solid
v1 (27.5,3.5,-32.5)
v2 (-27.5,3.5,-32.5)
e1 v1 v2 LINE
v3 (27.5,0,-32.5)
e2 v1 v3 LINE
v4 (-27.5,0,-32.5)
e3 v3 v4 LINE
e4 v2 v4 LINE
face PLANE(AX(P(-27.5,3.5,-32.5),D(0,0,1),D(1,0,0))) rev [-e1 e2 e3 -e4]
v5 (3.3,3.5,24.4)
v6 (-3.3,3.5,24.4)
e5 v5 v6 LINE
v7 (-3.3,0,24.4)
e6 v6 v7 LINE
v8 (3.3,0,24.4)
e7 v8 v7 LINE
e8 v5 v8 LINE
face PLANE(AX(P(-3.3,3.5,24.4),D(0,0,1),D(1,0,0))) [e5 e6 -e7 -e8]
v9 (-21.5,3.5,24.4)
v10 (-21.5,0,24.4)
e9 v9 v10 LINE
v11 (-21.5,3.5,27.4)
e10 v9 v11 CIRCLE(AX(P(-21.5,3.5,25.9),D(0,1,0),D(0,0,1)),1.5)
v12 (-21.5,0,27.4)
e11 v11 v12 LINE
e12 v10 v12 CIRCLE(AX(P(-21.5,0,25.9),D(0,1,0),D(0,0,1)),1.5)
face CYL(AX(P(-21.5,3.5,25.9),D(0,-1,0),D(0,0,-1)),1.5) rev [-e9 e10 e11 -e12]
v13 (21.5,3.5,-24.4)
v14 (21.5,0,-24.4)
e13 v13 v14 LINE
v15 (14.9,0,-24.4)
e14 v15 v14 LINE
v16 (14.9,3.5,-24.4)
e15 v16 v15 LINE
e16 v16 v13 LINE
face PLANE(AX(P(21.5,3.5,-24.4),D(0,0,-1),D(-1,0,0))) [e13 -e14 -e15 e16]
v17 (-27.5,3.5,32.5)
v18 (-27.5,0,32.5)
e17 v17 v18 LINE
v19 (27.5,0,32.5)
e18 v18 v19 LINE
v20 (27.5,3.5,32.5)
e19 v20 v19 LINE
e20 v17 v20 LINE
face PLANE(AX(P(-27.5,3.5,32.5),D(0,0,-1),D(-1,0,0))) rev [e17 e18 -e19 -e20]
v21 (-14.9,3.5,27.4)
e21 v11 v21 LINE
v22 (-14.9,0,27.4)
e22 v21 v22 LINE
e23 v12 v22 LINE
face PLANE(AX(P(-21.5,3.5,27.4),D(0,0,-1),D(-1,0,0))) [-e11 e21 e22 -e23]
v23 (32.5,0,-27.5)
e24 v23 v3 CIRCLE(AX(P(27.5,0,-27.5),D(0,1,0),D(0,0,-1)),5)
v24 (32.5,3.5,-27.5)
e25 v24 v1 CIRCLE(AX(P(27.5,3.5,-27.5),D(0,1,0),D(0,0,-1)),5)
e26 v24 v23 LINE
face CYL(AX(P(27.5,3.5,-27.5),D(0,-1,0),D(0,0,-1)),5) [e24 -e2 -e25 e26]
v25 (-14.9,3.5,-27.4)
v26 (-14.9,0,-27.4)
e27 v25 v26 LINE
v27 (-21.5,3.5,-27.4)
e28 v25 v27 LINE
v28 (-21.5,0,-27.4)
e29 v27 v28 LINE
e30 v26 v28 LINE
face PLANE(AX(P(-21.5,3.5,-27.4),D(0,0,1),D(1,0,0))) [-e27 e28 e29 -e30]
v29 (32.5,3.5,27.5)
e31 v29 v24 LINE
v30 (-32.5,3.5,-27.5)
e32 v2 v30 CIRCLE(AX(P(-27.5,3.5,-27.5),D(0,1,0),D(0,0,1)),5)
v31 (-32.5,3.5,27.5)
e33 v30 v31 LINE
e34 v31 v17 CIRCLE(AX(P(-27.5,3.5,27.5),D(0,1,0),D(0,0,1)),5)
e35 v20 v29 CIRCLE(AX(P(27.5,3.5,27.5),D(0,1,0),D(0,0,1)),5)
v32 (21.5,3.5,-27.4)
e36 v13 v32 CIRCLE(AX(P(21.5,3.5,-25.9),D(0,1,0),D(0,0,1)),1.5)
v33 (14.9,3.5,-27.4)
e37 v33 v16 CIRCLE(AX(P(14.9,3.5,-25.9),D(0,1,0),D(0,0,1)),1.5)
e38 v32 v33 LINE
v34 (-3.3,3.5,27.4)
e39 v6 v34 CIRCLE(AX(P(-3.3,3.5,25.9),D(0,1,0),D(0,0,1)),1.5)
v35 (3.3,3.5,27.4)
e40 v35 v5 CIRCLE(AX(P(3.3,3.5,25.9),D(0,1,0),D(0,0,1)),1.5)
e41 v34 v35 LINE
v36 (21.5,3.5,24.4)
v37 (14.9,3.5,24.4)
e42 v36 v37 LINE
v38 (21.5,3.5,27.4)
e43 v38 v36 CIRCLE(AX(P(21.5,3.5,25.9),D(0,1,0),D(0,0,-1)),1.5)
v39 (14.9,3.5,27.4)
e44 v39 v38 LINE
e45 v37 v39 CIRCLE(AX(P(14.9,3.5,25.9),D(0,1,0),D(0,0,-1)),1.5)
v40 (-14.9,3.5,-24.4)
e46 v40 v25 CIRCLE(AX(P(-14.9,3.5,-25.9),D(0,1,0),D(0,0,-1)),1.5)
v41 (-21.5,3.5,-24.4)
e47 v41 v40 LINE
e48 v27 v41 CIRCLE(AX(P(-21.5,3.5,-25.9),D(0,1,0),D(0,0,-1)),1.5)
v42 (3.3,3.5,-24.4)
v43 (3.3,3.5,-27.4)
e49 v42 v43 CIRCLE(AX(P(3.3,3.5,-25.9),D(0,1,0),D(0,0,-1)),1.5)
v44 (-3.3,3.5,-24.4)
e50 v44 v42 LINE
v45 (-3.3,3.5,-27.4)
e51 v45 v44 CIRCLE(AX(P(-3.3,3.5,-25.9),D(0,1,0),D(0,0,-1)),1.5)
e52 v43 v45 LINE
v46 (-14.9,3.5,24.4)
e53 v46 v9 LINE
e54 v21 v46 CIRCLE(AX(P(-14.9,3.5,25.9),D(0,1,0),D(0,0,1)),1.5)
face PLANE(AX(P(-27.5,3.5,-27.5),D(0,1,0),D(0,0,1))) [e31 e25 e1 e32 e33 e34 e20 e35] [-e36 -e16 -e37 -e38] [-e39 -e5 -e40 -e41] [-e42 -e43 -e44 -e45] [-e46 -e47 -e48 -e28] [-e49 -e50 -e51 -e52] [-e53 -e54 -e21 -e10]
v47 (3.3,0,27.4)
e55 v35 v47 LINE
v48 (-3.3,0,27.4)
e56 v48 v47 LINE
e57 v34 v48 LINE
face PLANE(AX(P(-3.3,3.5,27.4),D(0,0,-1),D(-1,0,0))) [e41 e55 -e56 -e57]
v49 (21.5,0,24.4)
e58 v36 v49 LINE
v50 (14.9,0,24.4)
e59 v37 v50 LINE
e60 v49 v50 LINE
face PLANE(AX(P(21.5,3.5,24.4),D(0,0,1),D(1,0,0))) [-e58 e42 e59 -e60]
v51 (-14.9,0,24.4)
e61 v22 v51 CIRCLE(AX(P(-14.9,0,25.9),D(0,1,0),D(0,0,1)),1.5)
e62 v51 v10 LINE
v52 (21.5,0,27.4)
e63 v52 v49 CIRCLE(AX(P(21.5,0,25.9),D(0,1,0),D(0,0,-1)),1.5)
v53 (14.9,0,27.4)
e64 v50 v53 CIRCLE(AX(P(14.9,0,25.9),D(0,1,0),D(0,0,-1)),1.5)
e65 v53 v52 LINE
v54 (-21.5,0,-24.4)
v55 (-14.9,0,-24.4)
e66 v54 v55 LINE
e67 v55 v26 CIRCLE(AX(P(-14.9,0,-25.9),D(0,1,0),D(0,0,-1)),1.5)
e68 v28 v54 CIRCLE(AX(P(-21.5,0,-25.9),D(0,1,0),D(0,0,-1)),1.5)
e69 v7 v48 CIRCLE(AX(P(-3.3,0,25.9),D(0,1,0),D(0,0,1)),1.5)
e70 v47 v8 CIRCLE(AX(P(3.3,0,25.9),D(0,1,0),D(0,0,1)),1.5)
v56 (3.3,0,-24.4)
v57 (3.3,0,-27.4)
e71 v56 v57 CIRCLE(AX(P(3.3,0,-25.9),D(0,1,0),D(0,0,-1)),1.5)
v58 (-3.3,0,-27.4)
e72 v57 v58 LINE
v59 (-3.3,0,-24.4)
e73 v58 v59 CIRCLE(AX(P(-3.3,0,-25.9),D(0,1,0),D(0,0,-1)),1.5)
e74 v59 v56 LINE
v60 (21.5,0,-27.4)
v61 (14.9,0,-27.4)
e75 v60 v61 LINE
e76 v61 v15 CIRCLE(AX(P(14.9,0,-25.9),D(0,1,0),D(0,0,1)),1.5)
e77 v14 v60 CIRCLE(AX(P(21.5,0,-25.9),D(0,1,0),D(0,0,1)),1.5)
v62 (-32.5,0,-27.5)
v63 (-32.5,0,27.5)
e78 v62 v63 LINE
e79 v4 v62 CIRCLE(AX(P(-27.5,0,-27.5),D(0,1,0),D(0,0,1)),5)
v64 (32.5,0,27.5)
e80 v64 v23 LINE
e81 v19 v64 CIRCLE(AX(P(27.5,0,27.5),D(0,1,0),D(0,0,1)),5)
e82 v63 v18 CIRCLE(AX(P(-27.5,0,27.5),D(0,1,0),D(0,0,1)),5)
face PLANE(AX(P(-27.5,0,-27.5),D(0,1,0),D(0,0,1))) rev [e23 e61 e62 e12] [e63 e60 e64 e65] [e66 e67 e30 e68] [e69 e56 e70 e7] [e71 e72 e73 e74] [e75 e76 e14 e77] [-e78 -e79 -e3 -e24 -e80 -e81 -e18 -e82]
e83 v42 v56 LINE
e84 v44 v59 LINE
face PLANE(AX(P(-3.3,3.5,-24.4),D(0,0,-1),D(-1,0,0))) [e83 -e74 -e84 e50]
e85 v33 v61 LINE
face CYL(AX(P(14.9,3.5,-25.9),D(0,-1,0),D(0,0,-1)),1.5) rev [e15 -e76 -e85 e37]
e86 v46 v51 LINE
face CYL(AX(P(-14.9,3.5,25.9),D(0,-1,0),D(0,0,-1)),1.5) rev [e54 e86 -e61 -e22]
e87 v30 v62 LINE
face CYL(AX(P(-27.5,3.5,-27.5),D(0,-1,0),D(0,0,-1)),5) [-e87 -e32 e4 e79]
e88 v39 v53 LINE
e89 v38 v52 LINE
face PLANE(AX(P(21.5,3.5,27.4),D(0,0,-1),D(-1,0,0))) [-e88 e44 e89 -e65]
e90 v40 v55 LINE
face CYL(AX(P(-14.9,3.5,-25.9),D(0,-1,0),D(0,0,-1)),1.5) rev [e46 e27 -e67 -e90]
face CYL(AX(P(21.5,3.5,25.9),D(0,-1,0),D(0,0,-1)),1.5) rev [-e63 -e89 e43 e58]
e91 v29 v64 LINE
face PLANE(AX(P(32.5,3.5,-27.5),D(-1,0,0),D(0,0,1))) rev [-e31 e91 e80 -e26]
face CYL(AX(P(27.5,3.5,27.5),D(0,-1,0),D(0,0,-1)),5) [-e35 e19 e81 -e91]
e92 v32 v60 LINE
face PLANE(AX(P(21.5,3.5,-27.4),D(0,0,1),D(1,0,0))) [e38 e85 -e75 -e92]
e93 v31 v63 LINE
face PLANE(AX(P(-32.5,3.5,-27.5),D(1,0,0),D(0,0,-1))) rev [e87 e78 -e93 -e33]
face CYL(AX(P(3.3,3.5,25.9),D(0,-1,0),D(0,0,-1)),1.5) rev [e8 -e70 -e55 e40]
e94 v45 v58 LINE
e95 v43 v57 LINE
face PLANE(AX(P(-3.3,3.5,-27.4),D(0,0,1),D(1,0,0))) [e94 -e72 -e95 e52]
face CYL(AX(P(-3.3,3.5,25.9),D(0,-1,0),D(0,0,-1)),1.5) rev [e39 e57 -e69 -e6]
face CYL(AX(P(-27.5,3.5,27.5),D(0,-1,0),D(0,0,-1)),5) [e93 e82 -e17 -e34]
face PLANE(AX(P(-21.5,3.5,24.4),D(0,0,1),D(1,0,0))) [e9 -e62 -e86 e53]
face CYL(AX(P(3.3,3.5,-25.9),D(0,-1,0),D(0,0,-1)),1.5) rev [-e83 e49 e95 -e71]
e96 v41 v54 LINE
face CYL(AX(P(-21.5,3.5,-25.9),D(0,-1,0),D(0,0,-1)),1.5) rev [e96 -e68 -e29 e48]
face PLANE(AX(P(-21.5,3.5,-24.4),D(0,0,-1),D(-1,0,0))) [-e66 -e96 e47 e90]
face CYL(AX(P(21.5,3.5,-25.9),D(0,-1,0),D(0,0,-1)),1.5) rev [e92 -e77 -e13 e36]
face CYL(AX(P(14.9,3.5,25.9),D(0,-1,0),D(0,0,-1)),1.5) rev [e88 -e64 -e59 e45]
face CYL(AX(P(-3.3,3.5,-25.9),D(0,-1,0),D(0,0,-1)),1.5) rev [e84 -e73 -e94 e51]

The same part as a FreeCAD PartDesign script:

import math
import FreeCAD as App
import Part
import Sketcher
from FreeCAD import Vector
Q = App.Units.Quantity

doc = App.newDocument("Part")
body = doc.addObject("PartDesign::Body", "Body")

sketch1 = body.newObject("Sketcher::SketchObject", "Sketch")
sketch1.AttachmentSupport = (doc.getObject("XZ_Plane"), [""])
sketch1.MapMode = "FlatFace"
sketch1.addGeometry(Part.LineSegment(Vector(27.5, -32.5, 0), Vector(-27.5, -32.5, 0)), False)
sketch1.addGeometry(Part.ArcOfCircle(Part.Circle(Vector(-27.5, -27.5, 0), Vector(0, 0, 1), 5), math.radians(180), math.radians(270)), False)
sketch1.addGeometry(Part.LineSegment(Vector(-32.5, -27.5, 0), Vector(-32.5, 27.5, 0)), False)
sketch1.addGeometry(Part.ArcOfCircle(Part.Circle(Vector(-27.5, 27.5, 0), Vector(0, 0, 1), 5), math.radians(90), math.radians(180)), False)
sketch1.addGeometry(Part.LineSegment(Vector(-27.5, 32.5, 0), Vector(27.5, 32.5, 0)), False)
sketch1.addGeometry(Part.ArcOfCircle(Part.Circle(Vector(27.5, 27.5, 0), Vector(0, 0, 1), 5), math.radians(0), math.radians(90)), False)
sketch1.addGeometry(Part.LineSegment(Vector(32.5, 27.5, 0), Vector(32.5, -27.5, 0)), False)
sketch1.addGeometry(Part.ArcOfCircle(Part.Circle(Vector(27.5, -27.5, 0), Vector(0, 0, 1), 5), math.radians(-90), math.radians(0)), False)
sketch1.addGeometry(Part.LineSegment(Vector(21.5, 27.4, 0), Vector(14.9, 27.4, 0)), False)
sketch1.addGeometry(Part.ArcOfCircle(Part.Circle(Vector(14.9, 25.9, 0), Vector(0, 0, 1), 1.5), math.radians(90), math.radians(270)), False)
sketch1.addGeometry(Part.LineSegment(Vector(14.9, 24.4, 0), Vector(21.5, 24.4, 0)), False)
sketch1.addGeometry(Part.ArcOfCircle(Part.Circle(Vector(21.5, 25.9, 0), Vector(0, 0, 1), 1.5), math.radians(-90), math.radians(90)), False)
sketch1.addGeometry(Part.LineSegment(Vector(-3.3, 24.4, 0), Vector(3.3, 24.4, 0)), False)
sketch1.addGeometry(Part.ArcOfCircle(Part.Circle(Vector(3.3, 25.9, 0), Vector(0, 0, 1), 1.5), math.radians(-90), math.radians(90)), False)
sketch1.addGeometry(Part.LineSegment(Vector(3.3, 27.4, 0), Vector(-3.3, 27.4, 0)), False)
sketch1.addGeometry(Part.ArcOfCircle(Part.Circle(Vector(-3.3, 25.9, 0), Vector(0, 0, 1), 1.5), math.radians(90), math.radians(270)), False)
sketch1.addGeometry(Part.LineSegment(Vector(-21.5, 24.4, 0), Vector(-14.9, 24.4, 0)), False)
sketch1.addGeometry(Part.ArcOfCircle(Part.Circle(Vector(-14.9, 25.9, 0), Vector(0, 0, 1), 1.5), math.radians(-90), math.radians(90)), False)
sketch1.addGeometry(Part.LineSegment(Vector(-14.9, 27.4, 0), Vector(-21.5, 27.4, 0)), False)
sketch1.addGeometry(Part.ArcOfCircle(Part.Circle(Vector(-21.5, 25.9, 0), Vector(0, 0, 1), 1.5), math.radians(90), math.radians(270)), False)
sketch1.addGeometry(Part.LineSegment(Vector(21.5, -24.4, 0), Vector(14.9, -24.4, 0)), False)
sketch1.addGeometry(Part.ArcOfCircle(Part.Circle(Vector(14.9, -25.9, 0), Vector(0, 0, 1), 1.5), math.radians(90), math.radians(270)), False)
sketch1.addGeometry(Part.LineSegment(Vector(14.9, -27.4, 0), Vector(21.5, -27.4, 0)), False)
sketch1.addGeometry(Part.ArcOfCircle(Part.Circle(Vector(21.5, -25.9, 0), Vector(0, 0, 1), 1.5), math.radians(-90), math.radians(90)), False)
sketch1.addGeometry(Part.LineSegment(Vector(-3.3, -27.4, 0), Vector(3.3, -27.4, 0)), False)
sketch1.addGeometry(Part.ArcOfCircle(Part.Circle(Vector(3.3, -25.9, 0), Vector(0, 0, 1), 1.5), math.radians(-90), math.radians(90)), False)
sketch1.addGeometry(Part.LineSegment(Vector(3.3, -24.4, 0), Vector(-3.3, -24.4, 0)), False)
sketch1.addGeometry(Part.ArcOfCircle(Part.Circle(Vector(-3.3, -25.9, 0), Vector(0, 0, 1), 1.5), math.radians(90), math.radians(270)), False)
sketch1.addGeometry(Part.LineSegment(Vector(-21.5, -27.4, 0), Vector(-14.9, -27.4, 0)), False)
sketch1.addGeometry(Part.ArcOfCircle(Part.Circle(Vector(-14.9, -25.9, 0), Vector(0, 0, 1), 1.5), math.radians(-90), math.radians(90)), False)
sketch1.addGeometry(Part.LineSegment(Vector(-14.9, -24.4, 0), Vector(-21.5, -24.4, 0)), False)
sketch1.addGeometry(Part.ArcOfCircle(Part.Circle(Vector(-21.5, -25.9, 0), Vector(0, 0, 1), 1.5), math.radians(90), math.radians(270)), False)
sketch1.addConstraint(Sketcher.Constraint("Tangent", 0, 2, 1, 2))
sketch1.addConstraint(Sketcher.Constraint("Tangent", 1, 1, 2, 1))
sketch1.addConstraint(Sketcher.Constraint("Tangent", 2, 2, 3, 2))
sketch1.addConstraint(Sketcher.Constraint("Tangent", 3, 1, 4, 1))
sketch1.addConstraint(Sketcher.Constraint("Tangent", 4, 2, 5, 2))
sketch1.addConstraint(Sketcher.Constraint("Tangent", 5, 1, 6, 1))
sketch1.addConstraint(Sketcher.Constraint("Tangent", 6, 2, 7, 2))
sketch1.addConstraint(Sketcher.Constraint("Tangent", 7, 1, 0, 1))
sketch1.addConstraint(Sketcher.Constraint("Tangent", 8, 2, 9, 1))
sketch1.addConstraint(Sketcher.Constraint("Tangent", 9, 2, 10, 1))
sketch1.addConstraint(Sketcher.Constraint("Tangent", 10, 2, 11, 1))
sketch1.addConstraint(Sketcher.Constraint("Tangent", 11, 2, 8, 1))
sketch1.addConstraint(Sketcher.Constraint("Tangent", 12, 2, 13, 1))
sketch1.addConstraint(Sketcher.Constraint("Tangent", 13, 2, 14, 1))
sketch1.addConstraint(Sketcher.Constraint("Tangent", 14, 2, 15, 1))
sketch1.addConstraint(Sketcher.Constraint("Tangent", 15, 2, 12, 1))
sketch1.addConstraint(Sketcher.Constraint("Tangent", 16, 2, 17, 1))
sketch1.addConstraint(Sketcher.Constraint("Tangent", 17, 2, 18, 1))
sketch1.addConstraint(Sketcher.Constraint("Tangent", 18, 2, 19, 1))
sketch1.addConstraint(Sketcher.Constraint("Tangent", 19, 2, 16, 1))
sketch1.addConstraint(Sketcher.Constraint("Tangent", 20, 2, 21, 1))
sketch1.addConstraint(Sketcher.Constraint("Tangent", 21, 2, 22, 1))
sketch1.addConstraint(Sketcher.Constraint("Tangent", 22, 2, 23, 1))
sketch1.addConstraint(Sketcher.Constraint("Tangent", 23, 2, 20, 1))
sketch1.addConstraint(Sketcher.Constraint("Tangent", 24, 2, 25, 1))
sketch1.addConstraint(Sketcher.Constraint("Tangent", 25, 2, 26, 1))
sketch1.addConstraint(Sketcher.Constraint("Tangent", 26, 2, 27, 1))
sketch1.addConstraint(Sketcher.Constraint("Tangent", 27, 2, 24, 1))
sketch1.addConstraint(Sketcher.Constraint("Tangent", 28, 2, 29, 1))
sketch1.addConstraint(Sketcher.Constraint("Tangent", 29, 2, 30, 1))
sketch1.addConstraint(Sketcher.Constraint("Tangent", 30, 2, 31, 1))
sketch1.addConstraint(Sketcher.Constraint("Tangent", 31, 2, 28, 1))
sketch1.addConstraint(Sketcher.Constraint("Horizontal", 0))
sketch1.addConstraint(Sketcher.Constraint("Vertical", 2))
sketch1.addConstraint(Sketcher.Constraint("Horizontal", 4))
sketch1.addConstraint(Sketcher.Constraint("Vertical", 6))
sketch1.addConstraint(Sketcher.Constraint("Horizontal", 8))
sketch1.addConstraint(Sketcher.Constraint("Horizontal", 10))
sketch1.addConstraint(Sketcher.Constraint("Horizontal", 12))
sketch1.addConstraint(Sketcher.Constraint("Horizontal", 14))
sketch1.addConstraint(Sketcher.Constraint("Horizontal", 16))
sketch1.addConstraint(Sketcher.Constraint("Horizontal", 18))
sketch1.addConstraint(Sketcher.Constraint("Horizontal", 20))
sketch1.addConstraint(Sketcher.Constraint("Horizontal", 22))
sketch1.addConstraint(Sketcher.Constraint("Horizontal", 24))
sketch1.addConstraint(Sketcher.Constraint("Horizontal", 26))
sketch1.addConstraint(Sketcher.Constraint("Horizontal", 28))
sketch1.addConstraint(Sketcher.Constraint("Horizontal", 30))
sketch1.addConstraint(Sketcher.Constraint("Equal", 1, 3))
sketch1.addConstraint(Sketcher.Constraint("Equal", 3, 5))
sketch1.addConstraint(Sketcher.Constraint("Equal", 5, 7))
sketch1.addConstraint(Sketcher.Constraint("Equal", 11, 13))
sketch1.addConstraint(Sketcher.Constraint("Equal", 15, 17))
sketch1.addConstraint(Sketcher.Constraint("Equal", 19, 21))
sketch1.addConstraint(Sketcher.Constraint("Equal", 23, 25))
sketch1.addConstraint(Sketcher.Constraint("Equal", 27, 29))
sketch1.addConstraint(Sketcher.Constraint("Symmetric", 1, 3, 5, 3, -1, 1))
sketch1.addConstraint(Sketcher.Constraint("Symmetric", 17, 3, 21, 3, -1, 1))
sketch1.addConstraint(Sketcher.Constraint("Symmetric", 15, 3, 25, 3, -1, 1))
sketch1.addConstraint(Sketcher.Constraint("Symmetric", 9, 3, 29, 3, -1, 1))
sketch1.addConstraint(Sketcher.Constraint("Symmetric", 9, 3, 17, 3, -2))
sketch1.addConstraint(Sketcher.Constraint("Horizontal", 11, 3, 13, 3))
sketch1.addConstraint(Sketcher.Constraint("Vertical", 11, 3, 23, 3))
sketch1.addConstraint(Sketcher.Constraint("Vertical", 13, 3, 25, 3))
sketch1.addConstraint(Sketcher.Constraint("Vertical", 15, 3, 27, 3))
sketch1.addConstraint(Sketcher.Constraint("Vertical", 19, 3, 31, 3))
sketch1.addConstraint(Sketcher.Constraint("Equal", 10, 12))
sketch1.addConstraint(Sketcher.Constraint("Equal", 14, 16))
sketch1.addConstraint(Sketcher.Constraint("Equal", 4, 2))
sketch1.addConstraint(Sketcher.Constraint("Radius", 1, Q("5 mm")))
sketch1.addConstraint(Sketcher.Constraint("Radius", 9, Q("1.5 mm")))
sketch1.addConstraint(Sketcher.Constraint("DistanceX", 0, 2, 0, 1, Q("55 mm")))
sketch1.addConstraint(Sketcher.Constraint("DistanceX", 8, 2, 8, 1, Q("6.6 mm")))
sketch1.addConstraint(Sketcher.Constraint("DistanceX", 11, 3, 5, 3, Q("6 mm")))
sketch1.addConstraint(Sketcher.Constraint("DistanceY", -1, 1, 9, 3, Q("25.9 mm")))
pad1 = body.newObject("PartDesign::Pad", "Pad")
pad1.Profile = sketch1
pad1.Length = 3.5
pad1.Reversed = True

doc.recompute()
